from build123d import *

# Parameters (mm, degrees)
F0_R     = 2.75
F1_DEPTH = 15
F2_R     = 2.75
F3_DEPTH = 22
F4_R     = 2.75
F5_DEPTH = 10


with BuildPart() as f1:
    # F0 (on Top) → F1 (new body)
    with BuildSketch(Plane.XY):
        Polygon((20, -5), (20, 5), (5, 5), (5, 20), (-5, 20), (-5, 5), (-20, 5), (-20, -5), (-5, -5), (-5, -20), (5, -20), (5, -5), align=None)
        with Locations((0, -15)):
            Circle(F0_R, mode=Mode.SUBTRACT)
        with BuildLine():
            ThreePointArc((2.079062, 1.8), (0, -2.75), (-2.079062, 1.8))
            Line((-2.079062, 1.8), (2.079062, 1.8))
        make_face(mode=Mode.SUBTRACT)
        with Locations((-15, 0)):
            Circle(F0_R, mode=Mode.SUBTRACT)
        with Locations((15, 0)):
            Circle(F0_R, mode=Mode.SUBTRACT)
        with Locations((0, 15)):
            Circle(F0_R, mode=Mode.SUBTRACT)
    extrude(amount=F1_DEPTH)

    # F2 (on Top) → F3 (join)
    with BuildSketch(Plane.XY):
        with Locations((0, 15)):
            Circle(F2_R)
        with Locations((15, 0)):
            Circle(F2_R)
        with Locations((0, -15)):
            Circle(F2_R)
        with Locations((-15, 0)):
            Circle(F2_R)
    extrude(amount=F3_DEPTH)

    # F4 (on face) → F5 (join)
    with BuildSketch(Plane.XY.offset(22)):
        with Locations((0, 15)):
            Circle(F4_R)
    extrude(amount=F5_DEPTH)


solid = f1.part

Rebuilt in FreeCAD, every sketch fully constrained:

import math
import FreeCAD as App
import Part
import Sketcher


def add_polygon(sketch, points):
    """Adds a closed chain of lines whose ends are joined by coincident constraints."""
    first, n = sketch.GeometryCount, len(points)
    for a, b in zip(points, points[1:] + points[:1]):
        sketch.addGeometry(Part.LineSegment(App.Vector(*a, 0), App.Vector(*b, 0)), False)
    for i in range(n):
        sketch.addConstraint(Sketcher.Constraint("Coincident", first + i, 2, first + (i + 1) % n, 1))

doc = App.newDocument("Part")
params = doc.addObject("Spreadsheet::Sheet", "Params")
for row, (alias, value) in enumerate([
    ("sketch1_diameter", "5.5 mm"),
    ("sketch1_width", "15 mm"),
    ("sketch1_width2", "10 mm"),
    ("pad1_length", "15 mm"),
    ("sketch2_diameter", "5.5 mm"),
    ("pad2_length", "22 mm"),
    ("sketch3_diameter", "5.5 mm"),
    ("pad3_length", "10 mm"),
], start=1):
    params.set(f"A{row}", alias)
    params.set(f"B{row}", "=" + value)
    params.setAlias(f"B{row}", alias)

body = doc.addObject("PartDesign::Body", "Body")

sketch1 = body.newObject("Sketcher::SketchObject", "Sketch")
sketch1.AttachmentSupport = (doc.getObject("XY_Plane"), [""])
sketch1.MapMode = "FlatFace"
add_polygon(sketch1, [(20, -5), (20, 5), (5, 5), (5, 20), (-5, 20), (-5, 5), (-20, 5), (-20, -5), (-5, -5), (-5, -20), (5, -20), (5, -5)])
sketch1.addGeometry(Part.Circle(App.Vector(0, -15, 0), App.Vector(0, 0, 1), 2.8), False)
sketch1.addGeometry(Part.LineSegment(App.Vector(-2.1, 1.8, 0), App.Vector(2.1, 1.8, 0)), False)
sketch1.addGeometry(Part.ArcOfCircle(Part.Circle(App.Vector(0, 0, 0), App.Vector(0, 0, 1), 2.7), math.radians(139), math.radians(401)), False)
sketch1.addGeometry(Part.Circle(App.Vector(-15, 0, 0), App.Vector(0, 0, 1), 2.8), False)
sketch1.addGeometry(Part.Circle(App.Vector(15, 0, 0), App.Vector(0, 0, 1), 2.8), False)
sketch1.addGeometry(Part.Circle(App.Vector(0, 15, 0), App.Vector(0, 0, 1), 2.8), False)
sketch1.addConstraint(Sketcher.Constraint("Coincident", 13, 1, 14, 1))
sketch1.addConstraint(Sketcher.Constraint("Coincident", 14, 2, 13, 2))
sketch1.addConstraint(Sketcher.Constraint("Vertical", 0))
sketch1.addConstraint(Sketcher.Constraint("Horizontal", 1))
sketch1.addConstraint(Sketcher.Constraint("Vertical", 2))
sketch1.addConstraint(Sketcher.Constraint("Horizontal", 3))
sketch1.addConstraint(Sketcher.Constraint("Vertical", 4))
sketch1.addConstraint(Sketcher.Constraint("Horizontal", 5))
sketch1.addConstraint(Sketcher.Constraint("Vertical", 6))
sketch1.addConstraint(Sketcher.Constraint("Horizontal", 7))
sketch1.addConstraint(Sketcher.Constraint("Vertical", 8))
sketch1.addConstraint(Sketcher.Constraint("Horizontal", 9))
sketch1.addConstraint(Sketcher.Constraint("Vertical", 10))
sketch1.addConstraint(Sketcher.Constraint("Horizontal", 11))
sketch1.addConstraint(Sketcher.Constraint("Horizontal", 13))
sketch1.addConstraint(Sketcher.Constraint("Coincident", 14, 3, -1, 1))
sketch1.addConstraint(Sketcher.Constraint("Equal", 12, 14))
sketch1.addConstraint(Sketcher.Constraint("Equal", 14, 15))
sketch1.addConstraint(Sketcher.Constraint("Equal", 15, 16))
sketch1.addConstraint(Sketcher.Constraint("Equal", 16, 17))
sketch1.addConstraint(Sketcher.Constraint("Symmetric", 15, 3, 16, 3, -1, 1))
sketch1.addConstraint(Sketcher.Constraint("Symmetric", 12, 3, 17, 3, -1, 1))
sketch1.addConstraint(Sketcher.Constraint("Symmetric", 0, 2, 6, 2, -1, 1))
sketch1.addConstraint(Sketcher.Constraint("Symmetric", 2, 2, 8, 2, -1, 1))
sketch1.addConstraint(Sketcher.Constraint("Symmetric", 4, 2, 10, 2, -1, 1))
sketch1.addConstraint(Sketcher.Constraint("Symmetric", 1, 2, 4, 2, -2))
sketch1.addConstraint(Sketcher.Constraint("PointOnObject", 12, 3, -2))
sketch1.addConstraint(Sketcher.Constraint("PointOnObject", 15, 3, -1))
sketch1.addConstraint(Sketcher.Constraint("Equal", 9, 0))
sketch1.addConstraint(Sketcher.Constraint("Equal", 11, 2))
sketch1.addConstraint(Sketcher.Constraint("Diameter", 12, 5.5))
sketch1.addConstraint(Sketcher.Constraint("DistanceX", 1, 2, 1, 1, 15.0))
sketch1.addConstraint(Sketcher.Constraint("DistanceX", 3, 2, 3, 1, 10.0))
sketch1.addConstraint(Sketcher.Constraint("DistanceY", 12, 3, -1, 1, 15.0))
sketch1.addConstraint(Sketcher.Constraint("DistanceX", 15, 3, -1, 1, 15.0))
sketch1.addConstraint(Sketcher.Constraint("DistanceY", -1, 1, 13, 1, 1.8))
sketch1.setExpression("Constraints[42]", "Params.sketch1_diameter")
sketch1.setExpression("Constraints[43]", "Params.sketch1_width")
sketch1.setExpression("Constraints[44]", "Params.sketch1_width2")
pad1 = body.newObject("PartDesign::Pad", "Pad")
pad1.Profile = sketch1
pad1.setExpression("Length", "Params.pad1_length")

sketch2 = body.newObject("Sketcher::SketchObject", "Sketch001")
sketch2.AttachmentSupport = (doc.getObject("XY_Plane"), [""])
sketch2.MapMode = "FlatFace"
sketch2.addGeometry(Part.Circle(App.Vector(0, 15, 0), App.Vector(0, 0, 1), 2.8), False)
sketch2.addGeometry(Part.Circle(App.Vector(15, 0, 0), App.Vector(0, 0, 1), 2.8), False)
sketch2.addGeometry(Part.Circle(App.Vector(0, -15, 0), App.Vector(0, 0, 1), 2.8), False)
sketch2.addGeometry(Part.Circle(App.Vector(-15, 0, 0), App.Vector(0, 0, 1), 2.8), False)
sketch2.addConstraint(Sketcher.Constraint("Equal", 0, 1))
sketch2.addConstraint(Sketcher.Constraint("Equal", 1, 2))
sketch2.addConstraint(Sketcher.Constraint("Equal", 2, 3))
sketch2.addConstraint(Sketcher.Constraint("Symmetric", 0, 3, 2, 3, -1, 1))
sketch2.addConstraint(Sketcher.Constraint("Symmetric", 1, 3, 3, 3, -1, 1))
sketch2.addConstraint(Sketcher.Constraint("PointOnObject", 0, 3, -2))
sketch2.addConstraint(Sketcher.Constraint("PointOnObject", 1, 3, -1))
sketch2.addConstraint(Sketcher.Constraint("Diameter", 0, 5.5))
sketch2.addConstraint(Sketcher.Constraint("DistanceY", -1, 1, 0, 3, 15.0))
sketch2.addConstraint(Sketcher.Constraint("DistanceX", -1, 1, 1, 3, 15.0))
sketch2.setExpression("Constraints[7]", "Params.sketch2_diameter")
pad2 = body.newObject("PartDesign::Pad", "Pad001")
pad2.Profile = sketch2
pad2.setExpression("Length", "Params.pad2_length")

sketch3 = body.newObject("Sketcher::SketchObject", "Sketch002")
sketch3.AttachmentSupport = (doc.getObject("XY_Plane"), [""])
sketch3.MapMode = "FlatFace"
sketch3.AttachmentOffset = App.Placement(App.Vector(0, 0, 22), App.Rotation())
sketch3.addGeometry(Part.Circle(App.Vector(0, 15, 0), App.Vector(0, 0, 1), 2.8), False)
sketch3.addConstraint(Sketcher.Constraint("PointOnObject", 0, 3, -2))
sketch3.addConstraint(Sketcher.Constraint("Diameter", 0, 5.5))
sketch3.addConstraint(Sketcher.Constraint("DistanceY", -1, 1, 0, 3, 15.0))
sketch3.setExpression("Constraints[1]", "Params.sketch3_diameter")
pad3 = body.newObject("PartDesign::Pad", "Pad002")
pad3.Profile = sketch3
pad3.setExpression("Length", "Params.pad3_length")

doc.recompute()
